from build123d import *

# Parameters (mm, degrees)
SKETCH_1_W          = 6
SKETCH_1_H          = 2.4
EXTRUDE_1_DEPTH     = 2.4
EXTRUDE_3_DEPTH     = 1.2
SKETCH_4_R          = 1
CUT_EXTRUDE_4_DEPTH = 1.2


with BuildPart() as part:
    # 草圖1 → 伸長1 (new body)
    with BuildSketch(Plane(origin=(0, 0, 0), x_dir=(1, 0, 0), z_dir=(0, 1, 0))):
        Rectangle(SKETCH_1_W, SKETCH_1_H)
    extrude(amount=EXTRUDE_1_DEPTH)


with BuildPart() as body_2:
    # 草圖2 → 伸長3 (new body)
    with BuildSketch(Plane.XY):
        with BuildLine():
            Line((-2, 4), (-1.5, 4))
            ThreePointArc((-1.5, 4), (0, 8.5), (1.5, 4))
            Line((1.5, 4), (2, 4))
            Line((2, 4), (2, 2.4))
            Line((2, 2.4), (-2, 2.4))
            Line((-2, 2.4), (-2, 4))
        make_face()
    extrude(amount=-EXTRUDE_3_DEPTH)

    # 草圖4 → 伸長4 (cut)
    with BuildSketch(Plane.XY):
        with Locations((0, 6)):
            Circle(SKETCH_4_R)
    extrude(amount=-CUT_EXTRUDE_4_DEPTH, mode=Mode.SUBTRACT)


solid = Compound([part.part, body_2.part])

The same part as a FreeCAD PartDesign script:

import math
import FreeCAD as App
import Part
import Sketcher
from FreeCAD import Vector


def add_polygon(sketch, points):
    """Adds a closed chain of lines whose ends are joined by coincident constraints."""
    first, n = sketch.GeometryCount, len(points)
    for a, b in zip(points, points[1:] + points[:1]):
        sketch.addGeometry(Part.LineSegment(App.Vector(*a, 0), App.Vector(*b, 0)), False)
    for i in range(n):
        sketch.addConstraint(Sketcher.Constraint("Coincident", first + i, 2, first + (i + 1) % n, 1))

doc = App.newDocument("Part")
body = doc.addObject("PartDesign::Body", "Body")

# Sketch on XZ plane
sketch1 = body.newObject("Sketcher::SketchObject", "Sketch")
sketch1.AttachmentSupport = (doc.getObject("XZ_Plane"), [""])
sketch1.MapMode = "FlatFace"
add_polygon(sketch1, [(-3, -1.2), (-3, 1.2), (3, 1.2), (3, -1.2)])  # lines 0-3
sketch1.addConstraint(Sketcher.Constraint("Vertical", 0))
sketch1.addConstraint(Sketcher.Constraint("Horizontal", 1))
sketch1.addConstraint(Sketcher.Constraint("Vertical", 2))
sketch1.addConstraint(Sketcher.Constraint("Horizontal", 3))
sketch1.addConstraint(Sketcher.Constraint("Symmetric", 0, 2, 2, 2, -1, 1))
sketch1.addConstraint(Sketcher.Constraint("DistanceX", 1, 1, 1, 2, 6.0))
sketch1.addConstraint(Sketcher.Constraint("DistanceY", 0, 1, 0, 2, 2.4))
pad1 = body.newObject("PartDesign::Pad", "Pad")
pad1.Profile = sketch1
pad1.Length = 2.4
pad1.Reversed = True
body2 = doc.addObject("PartDesign::Body", "Body001")

# Sketch on XY plane
sketch2 = body2.newObject("Sketcher::SketchObject", "Sketch001")
sketch2.AttachmentSupport = (doc.getObject("XY_Plane001"), [""])
sketch2.MapMode = "FlatFace"
sketch2.addGeometry(Part.LineSegment(Vector(-1.5, 4, 0), Vector(-2, 4, 0)), False)
sketch2.addGeometry(Part.LineSegment(Vector(-2, 4, 0), Vector(-2, 2.4, 0)), False)
sketch2.addGeometry(Part.LineSegment(Vector(-2, 2.4, 0), Vector(2, 2.4, 0)), False)
sketch2.addGeometry(Part.LineSegment(Vector(2, 2.4, 0), Vector(2, 4, 0)), False)
sketch2.addGeometry(Part.LineSegment(Vector(2, 4, 0), Vector(1.5, 4, 0)), False)
sketch2.addGeometry(Part.ArcOfCircle(Part.Circle(Vector(0, 6, 0), Vector(0, 0, 1), 2.5), math.radians(-53), math.radians(233)), False)
sketch2.addConstraint(Sketcher.Constraint("Coincident", 0, 2, 1, 1))
sketch2.addConstraint(Sketcher.Constraint("Coincident", 1, 2, 2, 1))
sketch2.addConstraint(Sketcher.Constraint("Coincident", 2, 2, 3, 1))
sketch2.addConstraint(Sketcher.Constraint("Coincident", 3, 2, 4, 1))
sketch2.addConstraint(Sketcher.Constraint("Coincident", 4, 2, 5, 1))
sketch2.addConstraint(Sketcher.Constraint("Coincident", 5, 2, 0, 1))
sketch2.addConstraint(Sketcher.Constraint("Horizontal", 0))
sketch2.addConstraint(Sketcher.Constraint("Vertical", 1))
sketch2.addConstraint(Sketcher.Constraint("Horizontal", 2))
sketch2.addConstraint(Sketcher.Constraint("Vertical", 3))
sketch2.addConstraint(Sketcher.Constraint("Horizontal", 4))
sketch2.addConstraint(Sketcher.Constraint("Symmetric", 0, 2, 3, 2, -2))
sketch2.addConstraint(Sketcher.Constraint("PointOnObject", 5, 3, -2))
sketch2.addConstraint(Sketcher.Constraint("Radius", 5, 2.5))
sketch2.addConstraint(Sketcher.Constraint("DistanceX", 2, 1, 2, 2, 4.0))
sketch2.addConstraint(Sketcher.Constraint("DistanceX", 0, 2, 0, 1, 0.5))
sketch2.addConstraint(Sketcher.Constraint("DistanceY", 1, 2, 1, 1, 1.6))
sketch2.addConstraint(Sketcher.Constraint("DistanceY", -1, 1, 5, 3, 6.0))
pad2 = body2.newObject("PartDesign::Pad", "Pad001")
pad2.Profile = sketch2
pad2.Length = 1.2
pad2.Reversed = True

# Sketch on XY plane
sketch3 = body2.newObject("Sketcher::SketchObject", "Sketch002")
sketch3.AttachmentSupport = (doc.getObject("XY_Plane001"), [""])
sketch3.MapMode = "FlatFace"
sketch3.addGeometry(Part.Circle(Vector(0, 6, 0), Vector(0, 0, 1), 1), False)
sketch3.addConstraint(Sketcher.Constraint("PointOnObject", 0, 3, -2))
sketch3.addConstraint(Sketcher.Constraint("Diameter", 0, 2.0))
sketch3.addConstraint(Sketcher.Constraint("DistanceY", -1, 1, 0, 3, 6.0))
pocket1 = body2.newObject("PartDesign::Pocket", "Pocket")
pocket1.Profile = sketch3
pocket1.Length = 1.2

doc.recompute()
